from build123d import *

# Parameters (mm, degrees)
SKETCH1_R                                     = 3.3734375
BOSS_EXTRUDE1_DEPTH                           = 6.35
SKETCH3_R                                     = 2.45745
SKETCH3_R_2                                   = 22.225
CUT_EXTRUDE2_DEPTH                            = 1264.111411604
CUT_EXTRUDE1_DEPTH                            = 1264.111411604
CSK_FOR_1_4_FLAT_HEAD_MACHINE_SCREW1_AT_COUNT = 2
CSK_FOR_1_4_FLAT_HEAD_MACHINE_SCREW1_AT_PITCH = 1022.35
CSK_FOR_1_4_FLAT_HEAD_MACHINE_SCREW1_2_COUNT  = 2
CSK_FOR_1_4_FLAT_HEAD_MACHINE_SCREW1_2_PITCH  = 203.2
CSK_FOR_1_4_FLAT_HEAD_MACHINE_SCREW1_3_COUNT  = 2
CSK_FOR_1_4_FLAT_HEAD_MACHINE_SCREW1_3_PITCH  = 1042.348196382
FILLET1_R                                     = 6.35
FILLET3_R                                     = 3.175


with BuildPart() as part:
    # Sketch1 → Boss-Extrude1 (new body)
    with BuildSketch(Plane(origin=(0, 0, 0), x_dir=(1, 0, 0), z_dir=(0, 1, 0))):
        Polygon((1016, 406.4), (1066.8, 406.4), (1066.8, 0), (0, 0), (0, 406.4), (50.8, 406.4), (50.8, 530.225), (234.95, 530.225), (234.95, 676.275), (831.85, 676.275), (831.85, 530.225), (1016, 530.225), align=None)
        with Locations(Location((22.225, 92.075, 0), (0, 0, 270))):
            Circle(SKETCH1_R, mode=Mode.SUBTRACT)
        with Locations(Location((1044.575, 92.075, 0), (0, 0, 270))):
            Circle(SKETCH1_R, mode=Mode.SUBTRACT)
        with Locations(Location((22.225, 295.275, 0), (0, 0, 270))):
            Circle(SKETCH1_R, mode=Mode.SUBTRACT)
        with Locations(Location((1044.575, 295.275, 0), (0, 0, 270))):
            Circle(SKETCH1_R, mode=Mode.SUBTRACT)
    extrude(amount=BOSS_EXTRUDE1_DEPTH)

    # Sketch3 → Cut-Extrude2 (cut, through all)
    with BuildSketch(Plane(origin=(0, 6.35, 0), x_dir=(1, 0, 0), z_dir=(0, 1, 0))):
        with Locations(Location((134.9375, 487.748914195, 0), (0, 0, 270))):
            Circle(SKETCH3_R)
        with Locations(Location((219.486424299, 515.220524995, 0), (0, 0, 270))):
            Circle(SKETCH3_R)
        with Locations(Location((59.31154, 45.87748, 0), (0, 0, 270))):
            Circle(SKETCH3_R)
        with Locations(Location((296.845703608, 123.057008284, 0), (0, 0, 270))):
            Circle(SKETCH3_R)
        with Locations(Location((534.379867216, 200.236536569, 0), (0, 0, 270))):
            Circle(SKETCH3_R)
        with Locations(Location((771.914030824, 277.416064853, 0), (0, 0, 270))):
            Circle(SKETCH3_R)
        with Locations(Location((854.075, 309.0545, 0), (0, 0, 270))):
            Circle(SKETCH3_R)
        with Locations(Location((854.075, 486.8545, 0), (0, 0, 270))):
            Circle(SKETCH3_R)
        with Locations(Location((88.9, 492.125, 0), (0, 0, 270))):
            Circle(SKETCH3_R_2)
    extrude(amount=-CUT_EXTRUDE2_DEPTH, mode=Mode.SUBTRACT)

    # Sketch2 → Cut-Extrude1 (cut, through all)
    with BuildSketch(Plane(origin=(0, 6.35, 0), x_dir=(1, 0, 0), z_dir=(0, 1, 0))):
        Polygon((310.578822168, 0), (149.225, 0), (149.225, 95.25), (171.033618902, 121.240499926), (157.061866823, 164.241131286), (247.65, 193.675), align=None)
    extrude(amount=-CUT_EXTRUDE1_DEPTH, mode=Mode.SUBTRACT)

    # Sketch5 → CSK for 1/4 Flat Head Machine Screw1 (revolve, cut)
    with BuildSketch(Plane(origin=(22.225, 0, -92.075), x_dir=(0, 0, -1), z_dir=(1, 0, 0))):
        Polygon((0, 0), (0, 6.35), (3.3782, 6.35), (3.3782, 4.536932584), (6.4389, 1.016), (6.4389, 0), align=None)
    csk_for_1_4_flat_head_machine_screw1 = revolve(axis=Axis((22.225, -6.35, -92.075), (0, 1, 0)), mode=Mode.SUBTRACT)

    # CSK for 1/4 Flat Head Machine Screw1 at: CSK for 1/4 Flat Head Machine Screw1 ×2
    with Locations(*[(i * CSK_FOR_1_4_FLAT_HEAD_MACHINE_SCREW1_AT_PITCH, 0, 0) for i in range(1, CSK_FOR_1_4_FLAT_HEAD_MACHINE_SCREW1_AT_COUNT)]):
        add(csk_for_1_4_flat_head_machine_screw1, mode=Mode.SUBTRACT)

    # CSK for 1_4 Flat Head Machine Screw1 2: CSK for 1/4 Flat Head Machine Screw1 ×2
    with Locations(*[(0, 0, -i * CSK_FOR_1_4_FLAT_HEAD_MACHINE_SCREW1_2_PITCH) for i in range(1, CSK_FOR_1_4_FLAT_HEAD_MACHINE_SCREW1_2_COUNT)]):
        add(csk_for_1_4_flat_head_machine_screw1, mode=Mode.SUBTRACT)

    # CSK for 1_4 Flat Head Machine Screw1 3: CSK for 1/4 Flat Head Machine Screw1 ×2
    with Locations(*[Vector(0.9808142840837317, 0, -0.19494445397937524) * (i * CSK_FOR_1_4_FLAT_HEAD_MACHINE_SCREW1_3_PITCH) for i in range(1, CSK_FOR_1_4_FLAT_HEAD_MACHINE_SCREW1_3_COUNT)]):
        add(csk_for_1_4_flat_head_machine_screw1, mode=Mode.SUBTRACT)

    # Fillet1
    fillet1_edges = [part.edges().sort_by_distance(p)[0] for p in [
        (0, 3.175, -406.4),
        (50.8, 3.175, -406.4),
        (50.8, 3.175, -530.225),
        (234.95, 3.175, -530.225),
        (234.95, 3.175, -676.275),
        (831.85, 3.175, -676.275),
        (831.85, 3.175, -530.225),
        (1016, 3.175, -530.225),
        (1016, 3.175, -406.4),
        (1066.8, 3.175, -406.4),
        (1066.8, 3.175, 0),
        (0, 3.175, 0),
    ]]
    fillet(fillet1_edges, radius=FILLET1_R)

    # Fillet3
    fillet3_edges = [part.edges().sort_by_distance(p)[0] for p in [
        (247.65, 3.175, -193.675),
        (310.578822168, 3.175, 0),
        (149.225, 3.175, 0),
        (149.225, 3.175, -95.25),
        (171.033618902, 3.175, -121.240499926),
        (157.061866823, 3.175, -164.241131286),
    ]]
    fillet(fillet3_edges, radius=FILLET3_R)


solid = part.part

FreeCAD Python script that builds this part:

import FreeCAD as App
import Part
import Sketcher

V = App.Vector
Q = App.Units.Quantity


def edges_at(feature, points):
    """Names of the edges that pass closest to the given points."""
    edges = feature.Shape.Edges
    near = lambda p: min(range(len(edges)), key=lambda i: edges[i].distToShape(Part.Vertex(*p))[0])
    return sorted({f"Edge{near(p) + 1}" for p in points})

doc = App.newDocument("Part")
body = doc.addObject("PartDesign::Body", "Body")

# Sketch on XZ plane
sketch1 = body.newObject("Sketcher::SketchObject", "Sketch")
sketch1.AttachmentSupport = (doc.getObject("XZ_Plane"), [""])
sketch1.MapMode = "FlatFace"
sketch1.addGeometry(Part.LineSegment(V(1066.8, -406.4, 0), V(1016, -406.4, 0)), False)
sketch1.addGeometry(Part.LineSegment(V(1016, -406.4, 0), V(1016, -530.225, 0)), False)
sketch1.addGeometry(Part.LineSegment(V(1016, -530.225, 0), V(831.85, -530.225, 0)), False)
sketch1.addGeometry(Part.LineSegment(V(831.85, -530.225, 0), V(831.85, -676.275, 0)), False)
sketch1.addGeometry(Part.LineSegment(V(831.85, -676.275, 0), V(234.95, -676.275, 0)), False)
sketch1.addGeometry(Part.LineSegment(V(234.95, -676.275, 0), V(234.95, -530.225, 0)), False)
sketch1.addGeometry(Part.LineSegment(V(234.95, -530.225, 0), V(50.8, -530.225, 0)), False)
sketch1.addGeometry(Part.LineSegment(V(50.8, -530.225, 0), V(50.8, -406.4, 0)), False)
sketch1.addGeometry(Part.LineSegment(V(50.8, -406.4, 0), V(0, -406.4, 0)), False)
sketch1.addGeometry(Part.LineSegment(V(0, -406.4, 0), V(0, 0, 0)), False)
sketch1.addGeometry(Part.LineSegment(V(0, 0, 0), V(1066.8, 0, 0)), False)
sketch1.addGeometry(Part.LineSegment(V(1066.8, 0, 0), V(1066.8, -406.4, 0)), False)
sketch1.addGeometry(Part.Circle(V(1044.575, -92.075, 0), V(0, 0, 1), 3.373438), False)
sketch1.addGeometry(Part.Circle(V(22.225, -92.075, 0), V(0, 0, 1), 3.373438), False)
sketch1.addGeometry(Part.Circle(V(1044.575, -295.275, 0), V(0, 0, 1), 3.373438), False)
sketch1.addGeometry(Part.Circle(V(22.225, -295.275, 0), V(0, 0, 1), 3.373438), False)
sketch1.addConstraint(Sketcher.Constraint("Coincident", 0, 2, 1, 1))
sketch1.addConstraint(Sketcher.Constraint("Coincident", 1, 2, 2, 1))
sketch1.addConstraint(Sketcher.Constraint("Coincident", 2, 2, 3, 1))
sketch1.addConstraint(Sketcher.Constraint("Coincident", 3, 2, 4, 1))
sketch1.addConstraint(Sketcher.Constraint("Coincident", 4, 2, 5, 1))
sketch1.addConstraint(Sketcher.Constraint("Coincident", 5, 2, 6, 1))
sketch1.addConstraint(Sketcher.Constraint("Coincident", 6, 2, 7, 1))
sketch1.addConstraint(Sketcher.Constraint("Coincident", 7, 2, 8, 1))
sketch1.addConstraint(Sketcher.Constraint("Coincident", 8, 2, 9, 1))
sketch1.addConstraint(Sketcher.Constraint("Coincident", 9, 2, 10, 1))
sketch1.addConstraint(Sketcher.Constraint("Coincident", 10, 2, 11, 1))
sketch1.addConstraint(Sketcher.Constraint("Coincident", 11, 2, 0, 1))
sketch1.addConstraint(Sketcher.Constraint("Horizontal", 0))
sketch1.addConstraint(Sketcher.Constraint("Vertical", 1))
sketch1.addConstraint(Sketcher.Constraint("Horizontal", 2))
sketch1.addConstraint(Sketcher.Constraint("Vertical", 3))
sketch1.addConstraint(Sketcher.Constraint("Horizontal", 4))
sketch1.addConstraint(Sketcher.Constraint("Vertical", 5))
sketch1.addConstraint(Sketcher.Constraint("Horizontal", 6))
sketch1.addConstraint(Sketcher.Constraint("Vertical", 7))
sketch1.addConstraint(Sketcher.Constraint("Horizontal", 8))
sketch1.addConstraint(Sketcher.Constraint("Vertical", 9))
sketch1.addConstraint(Sketcher.Constraint("Horizontal", 10))
sketch1.addConstraint(Sketcher.Constraint("Vertical", 11))
sketch1.addConstraint(Sketcher.Constraint("Coincident", 9, 2, -1, 1))
sketch1.addConstraint(Sketcher.Constraint("Equal", 12, 13))
sketch1.addConstraint(Sketcher.Constraint("Equal", 13, 14))
sketch1.addConstraint(Sketcher.Constraint("Equal", 14, 15))
sketch1.addConstraint(Sketcher.Constraint("Horizontal", 12, 3, 13, 3))
sketch1.addConstraint(Sketcher.Constraint("Horizontal", 14, 3, 15, 3))
sketch1.addConstraint(Sketcher.Constraint("Horizontal", 2, 2, 5, 2))
sketch1.addConstraint(Sketcher.Constraint("Horizontal", 0, 2, 7, 2))
sketch1.addConstraint(Sketcher.Constraint("Vertical", 12, 3, 14, 3))
sketch1.addConstraint(Sketcher.Constraint("Vertical", 13, 3, 15, 3))
sketch1.addConstraint(Sketcher.Constraint("Equal", 2, 6))
sketch1.addConstraint(Sketcher.Constraint("Equal", 0, 8))
sketch1.addConstraint(Sketcher.Constraint("DistanceX", 0, 2, 0, 1, Q("2 in")))
sketch1.addConstraint(Sketcher.Constraint("DistanceX", 10, 1, 10, 2, Q("42 in")))
sketch1.addConstraint(Sketcher.Constraint("DistanceY", 9, 1, 9, 2, Q("16 in")))
sketch1.addConstraint(Sketcher.Constraint("Diameter", 12, Q("0.265625 in")))
sketch1.addConstraint(Sketcher.Constraint("DistanceX", 4, 2, 4, 1, Q("23.5 in")))
sketch1.addConstraint(Sketcher.Constraint("DistanceY", 14, 3, 12, 3, Q("8 in")))
sketch1.addConstraint(Sketcher.Constraint("DistanceY", 3, 2, 14, 3, Q("15 in")))
sketch1.addConstraint(Sketcher.Constraint("DistanceY", 3, 2, 3, 1, Q("5.75 in")))
sketch1.addConstraint(Sketcher.Constraint("DistanceY", 1, 2, 1, 1, Q("4.875 in")))
sketch1.addConstraint(Sketcher.Constraint("DistanceX", 13, 3, 12, 3, Q("40.25 in")))
sketch1.addConstraint(Sketcher.Constraint("DistanceX", -1, 1, 12, 3, Q("41.125 in")))
pad1 = body.newObject("PartDesign::Pad", "Pad")
pad1.Profile = sketch1
pad1.Length = Q("0.25 in")
pad1.Reversed = True

# Sketch on XZ plane
sketch2 = body.newObject("Sketcher::SketchObject", "Sketch001")
sketch2.AttachmentSupport = (doc.getObject("XZ_Plane"), [""])
sketch2.MapMode = "FlatFace"
sketch2.AttachmentOffset = App.Placement(V(0, 0, -0.25 * 25.4), App.Rotation())
sketch2.addGeometry(Part.Circle(V(134.9375, -487.748914, 0), V(0, 0, 1), 2.45745), False)
sketch2.addGeometry(Part.Circle(V(219.486424, -515.220525, 0), V(0, 0, 1), 2.45745), False)
sketch2.addGeometry(Part.Circle(V(59.31154, -45.87748, 0), V(0, 0, 1), 2.45745), False)
sketch2.addGeometry(Part.Circle(V(296.845704, -123.057008, 0), V(0, 0, 1), 2.45745), False)
sketch2.addGeometry(Part.Circle(V(534.379867, -200.236537, 0), V(0, 0, 1), 2.45745), False)
sketch2.addGeometry(Part.Circle(V(771.914031, -277.416065, 0), V(0, 0, 1), 2.45745), False)
sketch2.addGeometry(Part.Circle(V(854.075, -309.0545, 0), V(0, 0, 1), 2.45745), False)
sketch2.addGeometry(Part.Circle(V(854.075, -486.8545, 0), V(0, 0, 1), 2.45745), False)
sketch2.addGeometry(Part.Circle(V(88.9, -492.125, 0), V(0, 0, 1), 22.225), False)
sketch2.addConstraint(Sketcher.Constraint("Equal", 0, 1))
sketch2.addConstraint(Sketcher.Constraint("Equal", 1, 2))
sketch2.addConstraint(Sketcher.Constraint("Equal", 2, 3))
sketch2.addConstraint(Sketcher.Constraint("Equal", 3, 4))
sketch2.addConstraint(Sketcher.Constraint("Equal", 4, 5))
sketch2.addConstraint(Sketcher.Constraint("Equal", 5, 6))
sketch2.addConstraint(Sketcher.Constraint("Equal", 6, 7))
sketch2.addConstraint(Sketcher.Constraint("Vertical", 6, 3, 7, 3))
sketch2.addConstraint(Sketcher.Constraint("Diameter", 8, Q("1.75 in")))
sketch2.addConstraint(Sketcher.Constraint("DistanceY", 7, 3, 6, 3, Q("7 in")))
sketch2.addConstraint(Sketcher.Constraint("Diameter", 0, Q("0.1935 in")))
sketch2.addConstraint(Sketcher.Constraint("DistanceX", -1, 1, 8, 3, Q("3.5 in")))
sketch2.addConstraint(Sketcher.Constraint("DistanceX", -1, 1, 0, 3, Q("5.3125 in")))
sketch2.addConstraint(Sketcher.Constraint("DistanceX", -1, 1, 6, 3, Q("33.625 in")))
sketch2.addConstraint(Sketcher.Constraint("DistanceY", 8, 3, -1, 1, Q("19.375 in")))
sketch2.addConstraint(Sketcher.Constraint("DistanceX", -1, 1, 2, 3, Q("2.3351 in")))
sketch2.addConstraint(Sketcher.Constraint("DistanceY", 2, 3, -1, 1, Q("1.8062 in")))
sketch2.addConstraint(Sketcher.Constraint("DistanceY", 6, 3, -1, 1, Q("12.1675 in")))
sketch2.addConstraint(Sketcher.Constraint("DistanceY", 3, 3, -1, 1, Q("123.057008 mm")))
sketch2.addConstraint(Sketcher.Constraint("DistanceX", -1, 1, 5, 3, Q("771.914031 mm")))
sketch2.addConstraint(Sketcher.Constraint("DistanceY", 1, 3, 0, 3, Q("27.471611 mm")))
sketch2.addConstraint(Sketcher.Constraint("DistanceX", 1, 3, 3, 3, Q("77.359279 mm")))
sketch2.addConstraint(Sketcher.Constraint("DistanceY", 4, 3, 3, 3, Q("77.179528 mm")))
sketch2.addConstraint(Sketcher.Constraint("DistanceY", 1, 3, 4, 3, Q("314.983988 mm")))
sketch2.addConstraint(Sketcher.Constraint("DistanceY", 5, 3, 4, 3, Q("77.179528 mm")))
sketch2.addConstraint(Sketcher.Constraint("DistanceX", -1, 1, 1, 3, Q("219.486424 mm")))
sketch2.addConstraint(Sketcher.Constraint("DistanceX", -1, 1, 4, 3, Q("534.379867 mm")))
pocket1 = body.newObject("PartDesign::Pocket", "Pocket")
pocket1.Profile = sketch2
pocket1.Type = "ThroughAll"
pocket1.Reversed = True

# Sketch on XZ plane
sketch3 = body.newObject("Sketcher::SketchObject", "Sketch002")
sketch3.AttachmentSupport = (doc.getObject("XZ_Plane"), [""])
sketch3.MapMode = "FlatFace"
sketch3.AttachmentOffset = App.Placement(V(0, 0, -0.25 * 25.4), App.Rotation())
sketch3.addGeometry(Part.LineSegment(V(149.225, 0, 0), V(310.578822, 0, 0)), False)
sketch3.addGeometry(Part.LineSegment(V(310.578822, 0, 0), V(247.65, -193.675, 0)), False)
sketch3.addGeometry(Part.LineSegment(V(247.65, -193.675, 0), V(157.061867, -164.241131, 0)), False)
sketch3.addGeometry(Part.LineSegment(V(157.061867, -164.241131, 0), V(171.033619, -121.2405, 0)), False)
sketch3.addGeometry(Part.LineSegment(V(171.033619, -121.2405, 0), V(149.225, -95.25, 0)), False)
sketch3.addGeometry(Part.LineSegment(V(149.225, -95.25, 0), V(149.225, 0, 0)), False)
sketch3.addConstraint(Sketcher.Constraint("Coincident", 0, 2, 1, 1))
sketch3.addConstraint(Sketcher.Constraint("Coincident", 1, 2, 2, 1))
sketch3.addConstraint(Sketcher.Constraint("Coincident", 2, 2, 3, 1))
sketch3.addConstraint(Sketcher.Constraint("Coincident", 3, 2, 4, 1))
sketch3.addConstraint(Sketcher.Constraint("Coincident", 4, 2, 5, 1))
sketch3.addConstraint(Sketcher.Constraint("Coincident", 5, 2, 0, 1))
sketch3.addConstraint(Sketcher.Constraint("Horizontal", 0))
sketch3.addConstraint(Sketcher.Constraint("Vertical", 5))
sketch3.addConstraint(Sketcher.Constraint("PointOnObject", 0, 2, -1))
sketch3.addConstraint(Sketcher.Constraint("Perpendicular", 1, 2))
sketch3.addConstraint(Sketcher.Constraint("Perpendicular", 2, 3))
sketch3.addConstraint(Sketcher.Constraint("Angle", 1, Q("-108 deg")))
sketch3.addConstraint(Sketcher.Constraint("Angle", 4, Q("130 deg")))
sketch3.addConstraint(Sketcher.Constraint("DistanceY", 5, 1, 5, 2, Q("3.75 in")))
sketch3.addConstraint(Sketcher.Constraint("Distance", 2, Q("3.75 in")))
sketch3.addConstraint(Sketcher.Constraint("DistanceX", -1, 1, 1, 2, Q("9.75 in")))
sketch3.addConstraint(Sketcher.Constraint("DistanceY", 1, 2, -1, 1, Q("7.625 in")))
sketch3.addConstraint(Sketcher.Constraint("DistanceX", -1, 1, 4, 2, Q("5.875 in")))
pocket2 = body.newObject("PartDesign::Pocket", "Pocket001")
pocket2.Profile = sketch3
pocket2.Type = "ThroughAll"
pocket2.Reversed = True

# Sketch on YZ plane
sketch4 = body.newObject("Sketcher::SketchObject", "Sketch003")
sketch4.AttachmentSupport = (doc.getObject("YZ_Plane"), [""])
sketch4.MapMode = "FlatFace"
sketch4.AttachmentOffset = App.Placement(V(0, 0, 0.875 * 25.4), App.Rotation())
sketch4.addGeometry(Part.LineSegment(V(6.35, -92.075, 0), V(0, -92.075, 0)), False)
sketch4.addGeometry(Part.LineSegment(V(0, -92.075, 0), V(0, -98.5139, 0)), False)
sketch4.addGeometry(Part.LineSegment(V(0, -98.5139, 0), V(1.016, -98.5139, 0)), False)
sketch4.addGeometry(Part.LineSegment(V(1.016, -98.5139, 0), V(4.536933, -95.4532, 0)), False)
sketch4.addGeometry(Part.LineSegment(V(4.536933, -95.4532, 0), V(6.35, -95.4532, 0)), False)
sketch4.addGeometry(Part.LineSegment(V(6.35, -95.4532, 0), V(6.35, -92.075, 0)), False)
sketch4.addGeometry(Part.LineSegment(V(0, -92.075, 0), V(6.35, -92.075, 0)), True)  # axis
sketch4.addConstraint(Sketcher.Constraint("Coincident", 0, 2, 1, 1))
sketch4.addConstraint(Sketcher.Constraint("Coincident", 1, 2, 2, 1))
sketch4.addConstraint(Sketcher.Constraint("Coincident", 2, 2, 3, 1))
sketch4.addConstraint(Sketcher.Constraint("Coincident", 3, 2, 4, 1))
sketch4.addConstraint(Sketcher.Constraint("Coincident", 4, 2, 5, 1))
sketch4.addConstraint(Sketcher.Constraint("Coincident", 5, 2, 0, 1))
sketch4.addConstraint(Sketcher.Constraint("Horizontal", 0))
sketch4.addConstraint(Sketcher.Constraint("Vertical", 1))
sketch4.addConstraint(Sketcher.Constraint("Horizontal", 2))
sketch4.addConstraint(Sketcher.Constraint("Horizontal", 4))
sketch4.addConstraint(Sketcher.Constraint("Vertical", 5))
sketch4.addConstraint(Sketcher.Constraint("Horizontal", 6))
sketch4.addConstraint(Sketcher.Constraint("Coincident", 6, 1, 0, 2))
sketch4.addConstraint(Sketcher.Constraint("PointOnObject", 0, 2, -2))
sketch4.addConstraint(Sketcher.Constraint("Vertical", 4, 2, 6, 2))
sketch4.addConstraint(Sketcher.Constraint("Angle", 3, Q("41 deg")))
sketch4.addConstraint(Sketcher.Constraint("DistanceX", 0, 2, 0, 1, Q("0.25 in")))
sketch4.addConstraint(Sketcher.Constraint("DistanceX", 2, 1, 2, 2, Q("0.04 in")))
sketch4.addConstraint(Sketcher.Constraint("DistanceY", 5, 1, 5, 2, Q("0.133 in")))
sketch4.addConstraint(Sketcher.Constraint("DistanceY", 1, 2, 1, 1, Q("0.2535 in")))
sketch4.addConstraint(Sketcher.Constraint("DistanceY", 0, 2, -1, 1, Q("3.625 in")))
groove = body.newObject("PartDesign::Groove", "Groove")
groove.Profile = sketch4
groove.ReferenceAxis = (sketch4, ["Axis0"])
groove.Angle = 360
doc.recompute()

linearpattern = body.newObject("PartDesign::LinearPattern", "LinearPattern")
linearpattern.Originals = [groove]
linearpattern.Direction = (doc.getObject("X_Axis"), [""])
linearpattern.Mode = "offset"
linearpattern.Offset = Q("40.25 in")
linearpattern.Occurrences = 2
body.Tip = linearpattern
doc.recompute()

linearpattern2 = body.newObject("PartDesign::LinearPattern", "LinearPattern001")
linearpattern2.Originals = [groove]
linearpattern2.Direction = (doc.getObject("Z_Axis"), [""])
linearpattern2.Mode = "offset"
linearpattern2.Offset = Q("8 in")
linearpattern2.Occurrences = 2
linearpattern2.Reversed = True
body.Tip = linearpattern2
doc.recompute()

datumline = body.newObject("PartDesign::Line", "DatumLine")
datumline.Placement = App.Placement(V(0, 0, 0), App.Rotation(V(0, 0, 1), V(0.980814284, 0, -0.194944454)))
linearpattern3 = body.newObject("PartDesign::LinearPattern", "LinearPattern002")
linearpattern3.Originals = [groove]
linearpattern3.Direction = (datumline, [""])
linearpattern3.Mode = "offset"
linearpattern3.Offset = 1042.348196
linearpattern3.Occurrences = 2
body.Tip = linearpattern3
doc.recompute()

fillet = body.newObject("PartDesign::Fillet", "Fillet")
fillet.Base = (linearpattern3, edges_at(linearpattern3, [
    (0, 3.175, -406.4),
    (50.8, 3.175, -406.4),
    (50.8, 3.175, -530.225),
    (234.95, 3.175, -530.225),
    (234.95, 3.175, -676.275),
    (831.85, 3.175, -676.275),
    (831.85, 3.175, -530.225),
    (1016, 3.175, -530.225),
    (1016, 3.175, -406.4),
    (1066.8, 3.175, -406.4),
    (1066.8, 3.175, 0),
    (0, 3.175, 0),
]))
fillet.Radius = Q("0.25 in")
doc.recompute()

fillet2 = body.newObject("PartDesign::Fillet", "Fillet001")
fillet2.Base = (fillet, edges_at(fillet, [
    (247.65, 3.175, -193.675),
    (310.579, 3.175, 0),
    (149.225, 3.175, 0),
    (149.225, 3.175, -95.25),
    (171.034, 3.175, -121.24),
    (157.062, 3.175, -164.241),
]))
fillet2.Radius = Q("0.125 in")

doc.recompute()
